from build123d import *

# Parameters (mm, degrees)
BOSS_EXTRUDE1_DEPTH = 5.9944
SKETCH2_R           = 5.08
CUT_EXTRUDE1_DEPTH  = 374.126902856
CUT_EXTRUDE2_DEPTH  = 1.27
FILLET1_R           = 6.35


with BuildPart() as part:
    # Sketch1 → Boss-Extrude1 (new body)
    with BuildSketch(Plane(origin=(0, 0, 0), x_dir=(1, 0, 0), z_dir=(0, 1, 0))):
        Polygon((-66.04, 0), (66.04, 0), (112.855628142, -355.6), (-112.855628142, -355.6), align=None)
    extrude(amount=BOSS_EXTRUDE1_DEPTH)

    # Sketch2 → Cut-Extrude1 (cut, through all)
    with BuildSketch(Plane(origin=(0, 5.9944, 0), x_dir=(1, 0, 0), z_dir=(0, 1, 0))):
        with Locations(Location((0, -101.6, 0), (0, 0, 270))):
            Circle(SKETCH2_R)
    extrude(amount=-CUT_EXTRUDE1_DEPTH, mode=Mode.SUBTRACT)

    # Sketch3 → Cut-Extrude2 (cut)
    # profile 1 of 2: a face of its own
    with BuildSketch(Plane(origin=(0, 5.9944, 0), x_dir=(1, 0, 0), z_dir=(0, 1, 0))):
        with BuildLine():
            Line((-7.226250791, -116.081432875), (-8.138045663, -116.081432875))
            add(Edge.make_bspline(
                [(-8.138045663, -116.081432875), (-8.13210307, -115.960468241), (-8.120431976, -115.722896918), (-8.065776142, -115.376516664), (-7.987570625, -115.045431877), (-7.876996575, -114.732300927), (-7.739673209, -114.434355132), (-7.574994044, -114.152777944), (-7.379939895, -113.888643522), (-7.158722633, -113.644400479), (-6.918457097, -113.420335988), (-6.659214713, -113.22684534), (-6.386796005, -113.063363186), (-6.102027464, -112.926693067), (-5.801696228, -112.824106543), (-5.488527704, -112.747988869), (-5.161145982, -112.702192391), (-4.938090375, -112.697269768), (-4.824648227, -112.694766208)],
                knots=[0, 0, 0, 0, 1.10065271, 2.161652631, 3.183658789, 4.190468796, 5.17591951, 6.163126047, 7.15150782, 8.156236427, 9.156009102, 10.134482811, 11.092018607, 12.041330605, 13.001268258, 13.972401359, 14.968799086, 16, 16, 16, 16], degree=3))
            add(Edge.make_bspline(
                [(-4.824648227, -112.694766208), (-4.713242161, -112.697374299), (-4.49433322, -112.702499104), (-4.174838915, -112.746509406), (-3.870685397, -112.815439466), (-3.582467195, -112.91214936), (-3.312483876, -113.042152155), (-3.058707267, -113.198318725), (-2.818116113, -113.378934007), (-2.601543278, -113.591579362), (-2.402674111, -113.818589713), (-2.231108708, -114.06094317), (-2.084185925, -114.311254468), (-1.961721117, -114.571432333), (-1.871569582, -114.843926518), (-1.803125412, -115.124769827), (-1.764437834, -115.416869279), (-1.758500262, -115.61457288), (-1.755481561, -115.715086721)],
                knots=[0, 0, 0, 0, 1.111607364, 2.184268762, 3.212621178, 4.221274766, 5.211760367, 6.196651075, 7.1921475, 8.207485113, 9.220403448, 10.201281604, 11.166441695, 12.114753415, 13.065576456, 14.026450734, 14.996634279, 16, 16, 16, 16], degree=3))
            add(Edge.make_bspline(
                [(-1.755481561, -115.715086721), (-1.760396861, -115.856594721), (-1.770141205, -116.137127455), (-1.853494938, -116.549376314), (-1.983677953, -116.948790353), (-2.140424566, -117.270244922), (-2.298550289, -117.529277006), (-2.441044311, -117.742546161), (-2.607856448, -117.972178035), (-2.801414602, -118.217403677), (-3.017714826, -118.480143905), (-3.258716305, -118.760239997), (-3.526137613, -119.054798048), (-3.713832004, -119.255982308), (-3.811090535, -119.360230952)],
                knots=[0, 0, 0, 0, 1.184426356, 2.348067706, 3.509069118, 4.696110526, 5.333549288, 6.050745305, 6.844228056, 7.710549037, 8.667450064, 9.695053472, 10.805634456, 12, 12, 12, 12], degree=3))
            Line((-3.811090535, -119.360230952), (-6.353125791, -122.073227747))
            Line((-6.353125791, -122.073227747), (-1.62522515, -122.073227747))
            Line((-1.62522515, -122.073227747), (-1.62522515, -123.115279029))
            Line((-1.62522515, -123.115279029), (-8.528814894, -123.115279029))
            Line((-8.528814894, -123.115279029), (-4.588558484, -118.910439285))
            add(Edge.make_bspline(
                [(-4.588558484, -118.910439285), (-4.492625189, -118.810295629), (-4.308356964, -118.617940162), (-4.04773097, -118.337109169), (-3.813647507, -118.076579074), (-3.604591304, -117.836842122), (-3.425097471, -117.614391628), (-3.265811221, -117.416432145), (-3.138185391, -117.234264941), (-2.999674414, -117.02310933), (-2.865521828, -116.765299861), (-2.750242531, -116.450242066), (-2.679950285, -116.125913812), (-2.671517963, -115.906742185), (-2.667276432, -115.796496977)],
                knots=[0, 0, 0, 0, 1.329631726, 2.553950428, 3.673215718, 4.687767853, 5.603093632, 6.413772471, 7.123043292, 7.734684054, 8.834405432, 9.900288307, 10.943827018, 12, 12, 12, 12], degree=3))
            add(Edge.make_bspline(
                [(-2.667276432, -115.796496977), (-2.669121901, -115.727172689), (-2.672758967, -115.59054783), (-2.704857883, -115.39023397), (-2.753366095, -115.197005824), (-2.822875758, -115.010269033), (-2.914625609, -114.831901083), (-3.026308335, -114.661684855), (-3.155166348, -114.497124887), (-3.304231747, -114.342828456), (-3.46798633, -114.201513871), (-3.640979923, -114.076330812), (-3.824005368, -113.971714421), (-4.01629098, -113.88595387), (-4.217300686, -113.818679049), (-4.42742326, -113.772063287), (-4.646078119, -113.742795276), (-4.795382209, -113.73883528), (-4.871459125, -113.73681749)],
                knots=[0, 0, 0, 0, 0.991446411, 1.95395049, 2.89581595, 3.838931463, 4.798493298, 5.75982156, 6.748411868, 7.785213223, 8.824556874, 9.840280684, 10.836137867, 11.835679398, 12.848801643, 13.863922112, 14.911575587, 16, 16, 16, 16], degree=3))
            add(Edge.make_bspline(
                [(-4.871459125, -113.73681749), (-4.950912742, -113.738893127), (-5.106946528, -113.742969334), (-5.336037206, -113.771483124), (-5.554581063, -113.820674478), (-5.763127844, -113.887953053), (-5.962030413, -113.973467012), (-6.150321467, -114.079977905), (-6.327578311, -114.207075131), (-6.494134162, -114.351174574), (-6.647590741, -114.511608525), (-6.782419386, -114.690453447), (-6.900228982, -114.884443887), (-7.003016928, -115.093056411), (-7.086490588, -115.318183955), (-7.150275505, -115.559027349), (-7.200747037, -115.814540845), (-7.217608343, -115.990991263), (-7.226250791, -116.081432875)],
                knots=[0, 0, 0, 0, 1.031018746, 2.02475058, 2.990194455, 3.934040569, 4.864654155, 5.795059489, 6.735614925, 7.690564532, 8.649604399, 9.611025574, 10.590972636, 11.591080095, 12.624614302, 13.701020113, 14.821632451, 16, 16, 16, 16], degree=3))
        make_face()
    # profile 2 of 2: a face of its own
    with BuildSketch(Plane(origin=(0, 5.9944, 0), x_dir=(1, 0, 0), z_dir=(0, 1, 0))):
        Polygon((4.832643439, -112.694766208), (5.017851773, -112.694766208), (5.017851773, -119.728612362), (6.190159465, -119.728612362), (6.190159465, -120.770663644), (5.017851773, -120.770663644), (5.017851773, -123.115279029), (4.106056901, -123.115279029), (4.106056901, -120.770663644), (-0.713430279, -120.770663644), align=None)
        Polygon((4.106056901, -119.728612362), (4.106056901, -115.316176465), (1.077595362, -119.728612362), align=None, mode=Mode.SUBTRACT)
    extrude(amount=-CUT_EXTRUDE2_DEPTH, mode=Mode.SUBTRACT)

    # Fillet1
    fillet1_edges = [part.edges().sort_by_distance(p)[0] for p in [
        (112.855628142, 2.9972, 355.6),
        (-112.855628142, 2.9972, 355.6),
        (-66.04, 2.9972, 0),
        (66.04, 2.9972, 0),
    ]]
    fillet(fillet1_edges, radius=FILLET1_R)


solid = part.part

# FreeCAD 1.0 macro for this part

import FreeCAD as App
import Part
import Sketcher
Q = App.Units.Quantity


def edges_at(feature, points):
    """Names of the edges that pass closest to the given points."""
    edges = feature.Shape.Edges
    near = lambda p: min(range(len(edges)), key=lambda i: edges[i].distToShape(Part.Vertex(*p))[0])
    return sorted({f"Edge{near(p) + 1}" for p in points})

doc = App.newDocument("Part")
params = doc.addObject("Spreadsheet::Sheet", "Params")
for row, (alias, value) in enumerate([
    ("sketch1_width", "5.2 in"),
    ("pad1_length", "0.236 in"),
    ("sketch2_diameter", "0.4 in"),
    ("pocket2_length", "0.05 in"),
    ("fillet_radius", "0.25 in"),
], start=1):
    params.set(f"A{row}", alias)
    params.set(f"B{row}", "=" + value)
    params.setAlias(f"B{row}", alias)

body = doc.addObject("PartDesign::Body", "Body")

sketch1 = doc.addObject("Sketcher::SketchObject", "Sketch")
body.addObject(sketch1)
sketch1.AttachmentSupport = (doc.XZ_Plane, [""])
sketch1.MapMode = "FlatFace"
sketch1.addGeometry(Part.LineSegment(App.Vector(66, 0, 0), App.Vector(-66, 0, 0)), False)
sketch1.addGeometry(Part.LineSegment(App.Vector(-66, 0, 0), App.Vector(-113, 356, 0)), False)
sketch1.addGeometry(Part.LineSegment(App.Vector(-113, 356, 0), App.Vector(113, 356, 0)), False)
sketch1.addGeometry(Part.LineSegment(App.Vector(113, 356, 0), App.Vector(66, 0, 0)), False)
sketch1.addConstraint(Sketcher.Constraint("Coincident", 0, 2, 1, 1))
sketch1.addConstraint(Sketcher.Constraint("Coincident", 1, 2, 2, 1))
sketch1.addConstraint(Sketcher.Constraint("Coincident", 2, 2, 3, 1))
sketch1.addConstraint(Sketcher.Constraint("Coincident", 3, 2, 0, 1))
sketch1.addConstraint(Sketcher.Constraint("Horizontal", 0))
sketch1.addConstraint(Sketcher.Constraint("Horizontal", 2))
sketch1.addConstraint(Sketcher.Constraint("Symmetric", 0, 2, 3, 2, -1, 1))
sketch1.addConstraint(Sketcher.Constraint("Equal", 1, 3))
sketch1.addConstraint(Sketcher.Constraint("DistanceX", 0, 2, 0, 1, Q("5.2 in")))
sketch1.addConstraint(Sketcher.Constraint("DistanceY", -1, 1, 1, 2, Q("14 in")))
sketch1.addConstraint(Sketcher.Constraint("Angle", 1, Q("97.5 deg")))
sketch1.setExpression("Constraints[8]", "Params.sketch1_width")
pad1 = doc.addObject("PartDesign::Pad", "Pad")
body.addObject(pad1)
pad1.Profile = sketch1
pad1.setExpression("Length", "Params.pad1_length")
pad1.Reversed = True

sketch2 = doc.addObject("Sketcher::SketchObject", "Sketch001")
body.addObject(sketch2)
sketch2.AttachmentSupport = (doc.XZ_Plane, [""])
sketch2.MapMode = "FlatFace"
sketch2.AttachmentOffset = App.Placement(App.Vector(0, 0, -0.236 * 25.4), App.Rotation())
sketch2.addGeometry(Part.Circle(App.Vector(0, 102, 0), App.Vector(0, 0, 1), 5), False)
sketch2.addConstraint(Sketcher.Constraint("PointOnObject", 0, 3, -2))
sketch2.addConstraint(Sketcher.Constraint("Diameter", 0, Q("0.4 in")))
sketch2.addConstraint(Sketcher.Constraint("DistanceY", -1, 1, 0, 3, Q("4 in")))
sketch2.setExpression("Constraints[1]", "Params.sketch2_diameter")
pocket1 = doc.addObject("PartDesign::Pocket", "Pocket")
body.addObject(pocket1)
pocket1.Profile = sketch2
pocket1.Type = "ThroughAll"
pocket1.Reversed = True

sketch3 = doc.addObject("Sketcher::SketchObject", "Sketch002")
body.addObject(sketch3)
sketch3.AttachmentSupport = (doc.XZ_Plane, [""])
sketch3.MapMode = "FlatFace"
sketch3.AttachmentOffset = App.Placement(App.Vector(0, 0, -0.236 * 25.4), App.Rotation())
sketch3.addGeometry(Part.LineSegment(App.Vector(-8.138046, 116.081433, 0), App.Vector(-7.226251, 116.081433, 0)), False)
sketch3.addGeometry(Part.BSplineCurve([App.Vector(-4.871459, 113.736817, 0), App.Vector(-4.950913, 113.738893, 0), App.Vector(-5.106947, 113.742969, 0), App.Vector(-5.336037, 113.771483, 0), App.Vector(-5.554581, 113.820674, 0), App.Vector(-5.763128, 113.887953, 0), App.Vector(-5.96203, 113.973467, 0), App.Vector(-6.150321, 114.079978, 0), App.Vector(-6.327578, 114.207075, 0), App.Vector(-6.494134, 114.351175, 0), App.Vector(-6.647591, 114.511609, 0), App.Vector(-6.782419, 114.690453, 0), App.Vector(-6.900229, 114.884444, 0), App.Vector(-7.003017, 115.093056, 0), App.Vector(-7.086491, 115.318184, 0), App.Vector(-7.150276, 115.559027, 0), App.Vector(-7.200747, 115.814541, 0), App.Vector(-7.217608, 115.990991, 0), App.Vector(-7.226251, 116.081433, 0)], [4, 1, 1, 1, 1, 1, 1, 1, 1, 1, 1, 1, 1, 1, 1, 1, 4], [0, 1.031018746, 2.02475058, 2.990194455, 3.934040569, 4.864654155, 5.795059489, 6.735614925, 7.690564532, 8.649604399, 9.611025574, 10.590972636, 11.591080095, 12.624614302, 13.701020113, 14.821632451, 16], False, 3, [1, 1, 1, 1, 1, 1, 1, 1, 1, 1, 1, 1, 1, 1, 1, 1, 1, 1, 1], False), False)
sketch3.addGeometry(Part.BSplineCurve([App.Vector(-2.667276, 115.796497, 0), App.Vector(-2.669122, 115.727173, 0), App.Vector(-2.672759, 115.590548, 0), App.Vector(-2.704858, 115.390234, 0), App.Vector(-2.753366, 115.197006, 0), App.Vector(-2.822876, 115.010269, 0), App.Vector(-2.914626, 114.831901, 0), App.Vector(-3.026308, 114.661685, 0), App.Vector(-3.155166, 114.497125, 0), App.Vector(-3.304232, 114.342828, 0), App.Vector(-3.467986, 114.201514, 0), App.Vector(-3.64098, 114.076331, 0), App.Vector(-3.824005, 113.971714, 0), App.Vector(-4.016291, 113.885954, 0), App.Vector(-4.217301, 113.818679, 0), App.Vector(-4.427423, 113.772063, 0), App.Vector(-4.646078, 113.742795, 0), App.Vector(-4.795382, 113.738835, 0), App.Vector(-4.871459, 113.736817, 0)], [4, 1, 1, 1, 1, 1, 1, 1, 1, 1, 1, 1, 1, 1, 1, 1, 4], [0, 0.991446411, 1.95395049, 2.89581595, 3.838931463, 4.798493298, 5.75982156, 6.748411868, 7.785213223, 8.824556874, 9.840280684, 10.836137867, 11.835679398, 12.848801643, 13.863922112, 14.911575587, 16], False, 3, [1, 1, 1, 1, 1, 1, 1, 1, 1, 1, 1, 1, 1, 1, 1, 1, 1, 1, 1], False), False)
sketch3.addGeometry(Part.BSplineCurve([App.Vector(-4.588558, 118.910439, 0), App.Vector(-4.492625, 118.810296, 0), App.Vector(-4.308357, 118.61794, 0), App.Vector(-4.047731, 118.337109, 0), App.Vector(-3.813648, 118.076579, 0), App.Vector(-3.604591, 117.836842, 0), App.Vector(-3.425097, 117.614392, 0), App.Vector(-3.265811, 117.416432, 0), App.Vector(-3.138185, 117.234265, 0), App.Vector(-2.999674, 117.023109, 0), App.Vector(-2.865522, 116.7653, 0), App.Vector(-2.750243, 116.450242, 0), App.Vector(-2.67995, 116.125914, 0), App.Vector(-2.671518, 115.906742, 0), App.Vector(-2.667276, 115.796497, 0)], [4, 1, 1, 1, 1, 1, 1, 1, 1, 1, 1, 1, 4], [0, 1.329631726, 2.553950428, 3.673215718, 4.687767853, 5.603093632, 6.413772471, 7.123043292, 7.734684054, 8.834405432, 9.900288307, 10.943827018, 12], False, 3, [1, 1, 1, 1, 1, 1, 1, 1, 1, 1, 1, 1, 1, 1, 1], False), False)
sketch3.addGeometry(Part.LineSegment(App.Vector(-4.588558, 118.910439, 0), App.Vector(-8.528815, 123.115279, 0)), False)
sketch3.addGeometry(Part.LineSegment(App.Vector(-8.528815, 123.115279, 0), App.Vector(-1.625225, 123.115279, 0)), False)
sketch3.addGeometry(Part.LineSegment(App.Vector(-1.625225, 123.115279, 0), App.Vector(-1.625225, 122.073228, 0)), False)
sketch3.addGeometry(Part.LineSegment(App.Vector(-1.625225, 122.073228, 0), App.Vector(-6.353126, 122.073228, 0)), False)
sketch3.addGeometry(Part.LineSegment(App.Vector(-6.353126, 122.073228, 0), App.Vector(-3.811091, 119.360231, 0)), False)
sketch3.addGeometry(Part.BSplineCurve([App.Vector(-1.755482, 115.715087, 0), App.Vector(-1.760397, 115.856595, 0), App.Vector(-1.770141, 116.137127, 0), App.Vector(-1.853495, 116.549376, 0), App.Vector(-1.983678, 116.94879, 0), App.Vector(-2.140425, 117.270245, 0), App.Vector(-2.29855, 117.529277, 0), App.Vector(-2.441044, 117.742546, 0), App.Vector(-2.607856, 117.972178, 0), App.Vector(-2.801415, 118.217404, 0), App.Vector(-3.017715, 118.480144, 0), App.Vector(-3.258716, 118.76024, 0), App.Vector(-3.526138, 119.054798, 0), App.Vector(-3.713832, 119.255982, 0), App.Vector(-3.811091, 119.360231, 0)], [4, 1, 1, 1, 1, 1, 1, 1, 1, 1, 1, 1, 4], [0, 1.184426356, 2.348067706, 3.509069118, 4.696110526, 5.333549288, 6.050745305, 6.844228056, 7.710549037, 8.667450064, 9.695053472, 10.805634456, 12], False, 3, [1, 1, 1, 1, 1, 1, 1, 1, 1, 1, 1, 1, 1, 1, 1], False), False)
sketch3.addGeometry(Part.BSplineCurve([App.Vector(-4.824648, 112.694766, 0), App.Vector(-4.713242, 112.697374, 0), App.Vector(-4.494333, 112.702499, 0), App.Vector(-4.174839, 112.746509, 0), App.Vector(-3.870685, 112.815439, 0), App.Vector(-3.582467, 112.912149, 0), App.Vector(-3.312484, 113.042152, 0), App.Vector(-3.058707, 113.198319, 0), App.Vector(-2.818116, 113.378934, 0), App.Vector(-2.601543, 113.591579, 0), App.Vector(-2.402674, 113.81859, 0), App.Vector(-2.231109, 114.060943, 0), App.Vector(-2.084186, 114.311254, 0), App.Vector(-1.961721, 114.571432, 0), App.Vector(-1.87157, 114.843927, 0), App.Vector(-1.803125, 115.12477, 0), App.Vector(-1.764438, 115.416869, 0), App.Vector(-1.7585, 115.614573, 0), App.Vector(-1.755482, 115.715087, 0)], [4, 1, 1, 1, 1, 1, 1, 1, 1, 1, 1, 1, 1, 1, 1, 1, 4], [0, 1.111607364, 2.184268762, 3.212621178, 4.221274766, 5.211760367, 6.196651075, 7.1921475, 8.207485113, 9.220403448, 10.201281604, 11.166441695, 12.114753415, 13.065576456, 14.026450734, 14.996634279, 16], False, 3, [1, 1, 1, 1, 1, 1, 1, 1, 1, 1, 1, 1, 1, 1, 1, 1, 1, 1, 1], False), False)
sketch3.addGeometry(Part.BSplineCurve([App.Vector(-8.138046, 116.081433, 0), App.Vector(-8.132103, 115.960468, 0), App.Vector(-8.120432, 115.722897, 0), App.Vector(-8.065776, 115.376517, 0), App.Vector(-7.987571, 115.045432, 0), App.Vector(-7.876997, 114.732301, 0), App.Vector(-7.739673, 114.434355, 0), App.Vector(-7.574994, 114.152778, 0), App.Vector(-7.37994, 113.888644, 0), App.Vector(-7.158723, 113.6444, 0), App.Vector(-6.918457, 113.420336, 0), App.Vector(-6.659215, 113.226845, 0), App.Vector(-6.386796, 113.063363, 0), App.Vector(-6.102027, 112.926693, 0), App.Vector(-5.801696, 112.824107, 0), App.Vector(-5.488528, 112.747989, 0), App.Vector(-5.161146, 112.702192, 0), App.Vector(-4.93809, 112.69727, 0), App.Vector(-4.824648, 112.694766, 0)], [4, 1, 1, 1, 1, 1, 1, 1, 1, 1, 1, 1, 1, 1, 1, 1, 4], [0, 1.10065271, 2.161652631, 3.183658789, 4.190468796, 5.17591951, 6.163126047, 7.15150782, 8.156236427, 9.156009102, 10.134482811, 11.092018607, 12.041330605, 13.001268258, 13.972401359, 14.968799086, 16], False, 3, [1, 1, 1, 1, 1, 1, 1, 1, 1, 1, 1, 1, 1, 1, 1, 1, 1, 1, 1], False), False)
sketch3.addGeometry(Part.LineSegment(App.Vector(5.017852, 112.694766, 0), App.Vector(4.832643, 112.694766, 0)), False)
sketch3.addGeometry(Part.LineSegment(App.Vector(4.832643, 112.694766, 0), App.Vector(-0.71343, 120.770664, 0)), False)
sketch3.addGeometry(Part.LineSegment(App.Vector(-0.71343, 120.770664, 0), App.Vector(4.106057, 120.770664, 0)), False)
sketch3.addGeometry(Part.LineSegment(App.Vector(4.106057, 120.770664, 0), App.Vector(4.106057, 123.115279, 0)), False)
sketch3.addGeometry(Part.LineSegment(App.Vector(4.106057, 123.115279, 0), App.Vector(5.017852, 123.115279, 0)), False)
sketch3.addGeometry(Part.LineSegment(App.Vector(5.017852, 123.115279, 0), App.Vector(5.017852, 120.770664, 0)), False)
sketch3.addGeometry(Part.LineSegment(App.Vector(5.017852, 120.770664, 0), App.Vector(6.190159, 120.770664, 0)), False)
sketch3.addGeometry(Part.LineSegment(App.Vector(6.190159, 120.770664, 0), App.Vector(6.190159, 119.728612, 0)), False)
sketch3.addGeometry(Part.LineSegment(App.Vector(6.190159, 119.728612, 0), App.Vector(5.017852, 119.728612, 0)), False)
sketch3.addGeometry(Part.LineSegment(App.Vector(5.017852, 119.728612, 0), App.Vector(5.017852, 112.694766, 0)), False)
sketch3.addGeometry(Part.LineSegment(App.Vector(4.106057, 119.728612, 0), App.Vector(1.077595, 119.728612, 0)), False)
sketch3.addGeometry(Part.LineSegment(App.Vector(1.077595, 119.728612, 0), App.Vector(4.106057, 115.316176, 0)), False)
sketch3.addGeometry(Part.LineSegment(App.Vector(4.106057, 115.316176, 0), App.Vector(4.106057, 119.728612, 0)), False)
sketch3.addConstraint(Sketcher.Constraint("Block", 1))
sketch3.addConstraint(Sketcher.Constraint("Block", 2))
sketch3.addConstraint(Sketcher.Constraint("Block", 3))
sketch3.addConstraint(Sketcher.Constraint("Block", 9))
sketch3.addConstraint(Sketcher.Constraint("Block", 10))
sketch3.addConstraint(Sketcher.Constraint("Block", 11))
sketch3.addConstraint(Sketcher.Constraint("Coincident", 0, 2, 1, 2))
sketch3.addConstraint(Sketcher.Constraint("Coincident", 3, 1, 4, 1))
sketch3.addConstraint(Sketcher.Constraint("Coincident", 4, 2, 5, 1))
sketch3.addConstraint(Sketcher.Constraint("Coincident", 5, 2, 6, 1))
sketch3.addConstraint(Sketcher.Constraint("Coincident", 6, 2, 7, 1))
sketch3.addConstraint(Sketcher.Constraint("Coincident", 7, 2, 8, 1))
sketch3.addConstraint(Sketcher.Constraint("Coincident", 8, 2, 9, 2))
sketch3.addConstraint(Sketcher.Constraint("Coincident", 11, 1, 0, 1))
sketch3.addConstraint(Sketcher.Constraint("Coincident", 12, 2, 13, 1))
sketch3.addConstraint(Sketcher.Constraint("Coincident", 13, 2, 14, 1))
sketch3.addConstraint(Sketcher.Constraint("Coincident", 14, 2, 15, 1))
sketch3.addConstraint(Sketcher.Constraint("Coincident", 15, 2, 16, 1))
sketch3.addConstraint(Sketcher.Constraint("Coincident", 16, 2, 17, 1))
sketch3.addConstraint(Sketcher.Constraint("Coincident", 17, 2, 18, 1))
sketch3.addConstraint(Sketcher.Constraint("Coincident", 18, 2, 19, 1))
sketch3.addConstraint(Sketcher.Constraint("Coincident", 19, 2, 20, 1))
sketch3.addConstraint(Sketcher.Constraint("Coincident", 20, 2, 21, 1))
sketch3.addConstraint(Sketcher.Constraint("Coincident", 21, 2, 12, 1))
sketch3.addConstraint(Sketcher.Constraint("Coincident", 22, 2, 23, 1))
sketch3.addConstraint(Sketcher.Constraint("Coincident", 23, 2, 24, 1))
sketch3.addConstraint(Sketcher.Constraint("Coincident", 24, 2, 22, 1))
sketch3.addConstraint(Sketcher.Constraint("Horizontal", 5))
sketch3.addConstraint(Sketcher.Constraint("Vertical", 6))
sketch3.addConstraint(Sketcher.Constraint("Horizontal", 7))
sketch3.addConstraint(Sketcher.Constraint("Horizontal", 12))
sketch3.addConstraint(Sketcher.Constraint("Horizontal", 14))
sketch3.addConstraint(Sketcher.Constraint("Vertical", 15))
sketch3.addConstraint(Sketcher.Constraint("Horizontal", 16))
sketch3.addConstraint(Sketcher.Constraint("Vertical", 17))
sketch3.addConstraint(Sketcher.Constraint("Horizontal", 18))
sketch3.addConstraint(Sketcher.Constraint("Vertical", 19))
sketch3.addConstraint(Sketcher.Constraint("Horizontal", 20))
sketch3.addConstraint(Sketcher.Constraint("Vertical", 21))
sketch3.addConstraint(Sketcher.Constraint("Horizontal", 22))
sketch3.addConstraint(Sketcher.Constraint("Vertical", 24))
sketch3.addConstraint(Sketcher.Constraint("DistanceX", 7, 2, 7, 1, 4.727901))
sketch3.addConstraint(Sketcher.Constraint("DistanceX", 5, 1, 5, 2, 6.90359))
sketch3.addConstraint(Sketcher.Constraint("DistanceX", 12, 2, 12, 1, 0.185208))
sketch3.addConstraint(Sketcher.Constraint("DistanceX", 22, 2, 22, 1, 3.028462))
sketch3.addConstraint(Sketcher.Constraint("DistanceY", 6, 2, 6, 1, 1.042051))
sketch3.addConstraint(Sketcher.Constraint("DistanceY", 19, 2, 19, 1, 1.042051))
sketch3.addConstraint(Sketcher.Constraint("Distance", 4, 5.762491))
sketch3.addConstraint(Sketcher.Constraint("Distance", 13, 9.79689))
sketch3.addConstraint(Sketcher.Constraint("DistanceX", 14, 1, 14, 2, 4.819487))
sketch3.addConstraint(Sketcher.Constraint("DistanceX", 16, 1, 16, 2, 0.911795))
sketch3.addConstraint(Sketcher.Constraint("DistanceX", 18, 1, 18, 2, 1.172308))
sketch3.addConstraint(Sketcher.Constraint("DistanceX", 20, 2, 20, 1, 1.172308))
sketch3.addConstraint(Sketcher.Constraint("DistanceY", 15, 1, 15, 2, 2.344615))
sketch3.addConstraint(Sketcher.Constraint("DistanceY", 17, 2, 17, 1, 2.344615))
sketch3.addConstraint(Sketcher.Constraint("DistanceY", 24, 1, 24, 2, 4.412436))
sketch3.addConstraint(Sketcher.Constraint("DistanceY", -1, 1, 4, 2, 123.115279))
sketch3.addConstraint(Sketcher.Constraint("DistanceX", 13, 2, -1, 1, 0.71343))
sketch3.addConstraint(Sketcher.Constraint("DistanceY", -1, 1, 15, 2, 123.115279))
sketch3.addConstraint(Sketcher.Constraint("DistanceY", 22, 2, 13, 2, 1.042051))
sketch3.addConstraint(Sketcher.Constraint("DistanceX", 22, 2, 14, 2, 3.028462))
pocket2 = doc.addObject("PartDesign::Pocket", "Pocket001")
body.addObject(pocket2)
pocket2.Profile = sketch3
pocket2.setExpression("Length", "Params.pocket2_length")
pocket2.Reversed = True
doc.recompute()

fillet = doc.addObject("PartDesign::Fillet", "Fillet")
body.addObject(fillet)
fillet.Base = (pocket2, edges_at(pocket2, [
    (112.856, 2.997, 355.6),
    (-112.856, 2.997, 355.6),
    (-66.04, 2.997, 0),
    (66.04, 2.997, 0),
]))
fillet.setExpression("Radius", "Params.fillet_radius")

doc.recompute()
